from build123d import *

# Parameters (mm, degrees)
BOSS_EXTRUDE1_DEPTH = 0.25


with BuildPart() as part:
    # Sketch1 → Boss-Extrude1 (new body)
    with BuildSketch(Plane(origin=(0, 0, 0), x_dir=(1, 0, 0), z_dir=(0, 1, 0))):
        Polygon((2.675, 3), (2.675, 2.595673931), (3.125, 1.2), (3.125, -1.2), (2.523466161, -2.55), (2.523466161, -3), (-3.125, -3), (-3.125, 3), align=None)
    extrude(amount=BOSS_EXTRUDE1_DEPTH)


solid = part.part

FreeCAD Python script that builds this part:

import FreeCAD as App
import Part
import Sketcher
Q = App.Units.Quantity


def add_polygon(sketch, points):
    """Adds a closed chain of lines whose ends are joined by coincident constraints."""
    first, n = sketch.GeometryCount, len(points)
    for a, b in zip(points, points[1:] + points[:1]):
        sketch.addGeometry(Part.LineSegment(App.Vector(*a, 0), App.Vector(*b, 0)), False)
    for i in range(n):
        sketch.addConstraint(Sketcher.Constraint("Coincident", first + i, 2, first + (i + 1) % n, 1))

doc = App.newDocument("Part")
params = doc.addObject("Spreadsheet::Sheet", "Params")
for row, (alias, value) in enumerate([
    ("sketch1_height", "6 mm"),
    ("sketch1_width", "5.8 mm"),
    ("sketch1_height2", "2.4 mm"),
    ("sketch1_height3", "0.45 mm"),
    ("pad1_length", "0.25 mm"),
], start=1):
    params.set(f"A{row}", alias)
    params.set(f"B{row}", "=" + value)
    params.setAlias(f"B{row}", alias)

body = doc.addObject("PartDesign::Body", "Body")

# Sketch on XZ plane
sketch1 = body.newObject("Sketcher::SketchObject", "Sketch")
sketch1.AttachmentSupport = (doc.getObject("XZ_Plane"), [""])
sketch1.MapMode = "FlatFace"
add_polygon(sketch1, [(2.67, -2.6), (2.67, -3), (-3.12, -3), (-3.12, 3), (2.52, 3), (2.52, 2.55), (3.12, 1.2), (3.12, -1.2)])  # lines 0-7
sketch1.addConstraint([
    Sketcher.Constraint("Vertical", 0),
    Sketcher.Constraint("Horizontal", 1),
    Sketcher.Constraint("Vertical", 2),
    Sketcher.Constraint("Horizontal", 3),
    Sketcher.Constraint("Vertical", 4),
    Sketcher.Constraint("Vertical", 6),
    Sketcher.Constraint("DistanceY", 2, 1, 2, 2, Q("6 mm")),
    Sketcher.Constraint("DistanceX", 1, 2, 1, 1, Q("5.8 mm")),
    Sketcher.Constraint("DistanceY", 6, 2, 6, 1, Q("2.4 mm")),
    Sketcher.Constraint("DistanceY", 0, 2, -1, 1, Q("3 mm")),
    Sketcher.Constraint("DistanceY", 4, 2, 4, 1, Q("0.45 mm")),
    Sketcher.Constraint("DistanceY", -1, 1, 5, 2, Q("1.2 mm")),
    Sketcher.Constraint("DistanceX", 0, 2, 5, 2, Q("0.45 mm")),
    Sketcher.Constraint("DistanceX", -1, 1, 0, 2, Q("2.675 mm")),
    Sketcher.Constraint("DistanceX", 3, 1, 3, 2, Q("5.648466 mm")),
    Sketcher.Constraint("DistanceY", 0, 2, 0, 1, Q("0.404326 mm")),
])
sketch1.setExpression("Constraints[14]", "Params.sketch1_height")
sketch1.setExpression("Constraints[15]", "Params.sketch1_width")
sketch1.setExpression("Constraints[16]", "Params.sketch1_height2")
sketch1.setExpression("Constraints[18]", "Params.sketch1_height3")
pad1 = body.newObject("PartDesign::Pad", "Pad")
pad1.Profile = sketch1
pad1.setExpression("Length", "Params.pad1_length")
pad1.Reversed = True

doc.recompute()
